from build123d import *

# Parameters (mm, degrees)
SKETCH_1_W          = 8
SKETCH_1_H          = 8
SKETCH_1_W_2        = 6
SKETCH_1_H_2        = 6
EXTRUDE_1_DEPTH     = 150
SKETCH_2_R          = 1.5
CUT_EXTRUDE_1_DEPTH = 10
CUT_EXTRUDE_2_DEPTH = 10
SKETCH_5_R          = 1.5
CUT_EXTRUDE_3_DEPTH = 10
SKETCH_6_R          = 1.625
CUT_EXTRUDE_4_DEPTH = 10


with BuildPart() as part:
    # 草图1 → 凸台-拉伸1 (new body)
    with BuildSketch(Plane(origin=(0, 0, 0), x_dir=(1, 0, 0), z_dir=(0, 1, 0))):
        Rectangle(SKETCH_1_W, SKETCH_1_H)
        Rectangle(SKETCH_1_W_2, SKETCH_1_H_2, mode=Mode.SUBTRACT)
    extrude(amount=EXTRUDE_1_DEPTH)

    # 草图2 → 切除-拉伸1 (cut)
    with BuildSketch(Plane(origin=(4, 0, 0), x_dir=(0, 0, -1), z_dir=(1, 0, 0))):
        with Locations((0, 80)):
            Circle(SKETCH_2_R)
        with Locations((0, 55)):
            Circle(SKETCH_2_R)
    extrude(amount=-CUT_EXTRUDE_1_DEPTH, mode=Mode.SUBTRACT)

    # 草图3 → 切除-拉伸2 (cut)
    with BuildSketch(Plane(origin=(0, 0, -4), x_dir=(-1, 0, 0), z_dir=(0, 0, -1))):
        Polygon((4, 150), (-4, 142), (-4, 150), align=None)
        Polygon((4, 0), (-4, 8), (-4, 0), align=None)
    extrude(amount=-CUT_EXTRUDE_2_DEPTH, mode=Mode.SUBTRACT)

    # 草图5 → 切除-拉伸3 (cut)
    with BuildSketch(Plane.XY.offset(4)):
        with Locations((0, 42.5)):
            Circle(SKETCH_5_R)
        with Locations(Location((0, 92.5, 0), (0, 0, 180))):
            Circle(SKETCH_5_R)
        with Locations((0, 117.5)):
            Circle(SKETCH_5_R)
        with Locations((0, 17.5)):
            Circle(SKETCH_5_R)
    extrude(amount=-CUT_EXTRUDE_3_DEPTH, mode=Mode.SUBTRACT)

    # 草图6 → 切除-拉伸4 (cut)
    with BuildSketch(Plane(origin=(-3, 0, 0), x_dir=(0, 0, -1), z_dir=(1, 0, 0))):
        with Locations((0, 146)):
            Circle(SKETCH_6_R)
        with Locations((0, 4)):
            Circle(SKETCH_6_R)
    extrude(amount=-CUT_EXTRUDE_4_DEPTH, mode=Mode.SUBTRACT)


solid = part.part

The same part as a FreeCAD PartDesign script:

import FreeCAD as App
import Part
import Sketcher

doc = App.newDocument("Part")
params = doc.addObject("Spreadsheet::Sheet", "Params")
for row, (alias, value) in enumerate([
    ("sketch1_width", "8 mm"),
    ("sketch1_width2", "6 mm"),
    ("pad1_length", "150 mm"),
    ("sketch2_diameter", "3 mm"),
    ("pocket1_length", "10 mm"),
    ("sketch3_width", "8 mm"),
    ("pocket2_length", "10 mm"),
    ("sketch4_diameter", "3 mm"),
    ("pocket3_length", "10 mm"),
    ("sketch5_diameter", "3.25 mm"),
    ("pocket4_length", "10 mm"),
], start=1):
    params.set(f"A{row}", alias)
    params.set(f"B{row}", "=" + value)
    params.setAlias(f"B{row}", alias)

body = doc.addObject("PartDesign::Body", "Body")

# Sketch on XZ plane
sketch1 = body.newObject("Sketcher::SketchObject", "Sketch")
sketch1.AttachmentSupport = (doc.getObject("XZ_Plane"), [""])
sketch1.MapMode = "FlatFace"
sketch1.addGeometry([
    Part.LineSegment(App.Vector(-4, -4, 0), App.Vector(-4, 4, 0)),  # 0
    Part.LineSegment(App.Vector(-4, 4, 0), App.Vector(4, 4, 0)),  # 1
    Part.LineSegment(App.Vector(4, 4, 0), App.Vector(4, -4, 0)),  # 2
    Part.LineSegment(App.Vector(4, -4, 0), App.Vector(-4, -4, 0)),  # 3
    Part.LineSegment(App.Vector(3, 3, 0), App.Vector(-3, 3, 0)),  # 4
    Part.LineSegment(App.Vector(-3, 3, 0), App.Vector(-3, -3, 0)),  # 5
    Part.LineSegment(App.Vector(-3, -3, 0), App.Vector(3, -3, 0)),  # 6
    Part.LineSegment(App.Vector(3, -3, 0), App.Vector(3, 3, 0)),  # 7
], False)
sketch1.addConstraint([
    Sketcher.Constraint("Coincident", 0, 2, 1, 1),
    Sketcher.Constraint("Coincident", 1, 2, 2, 1),
    Sketcher.Constraint("Coincident", 2, 2, 3, 1),
    Sketcher.Constraint("Coincident", 3, 2, 0, 1),
    Sketcher.Constraint("Coincident", 4, 2, 5, 1),
    Sketcher.Constraint("Coincident", 5, 2, 6, 1),
    Sketcher.Constraint("Coincident", 6, 2, 7, 1),
    Sketcher.Constraint("Coincident", 7, 2, 4, 1),
    Sketcher.Constraint("Vertical", 0),
    Sketcher.Constraint("Horizontal", 1),
    Sketcher.Constraint("Vertical", 2),
    Sketcher.Constraint("Horizontal", 3),
    Sketcher.Constraint("Horizontal", 4),
    Sketcher.Constraint("Vertical", 5),
    Sketcher.Constraint("Horizontal", 6),
    Sketcher.Constraint("Vertical", 7),
    Sketcher.Constraint("Symmetric", 0, 2, 2, 2, -1, 1),
    Sketcher.Constraint("Symmetric", 4, 2, 6, 2, -1, 1),
    Sketcher.Constraint("Equal", 3, 0),
    Sketcher.Constraint("Equal", 6, 5),
    Sketcher.Constraint("DistanceX", 1, 1, 1, 2, 8.0),
    Sketcher.Constraint("DistanceX", 4, 2, 4, 1, 6.0),
])
sketch1.setExpression("Constraints[20]", "Params.sketch1_width")
sketch1.setExpression("Constraints[21]", "Params.sketch1_width2")
pad1 = body.newObject("PartDesign::Pad", "Pad")
pad1.Profile = sketch1
pad1.setExpression("Length", "Params.pad1_length")
pad1.Reversed = True

# Sketch on YZ plane
sketch2 = body.newObject("Sketcher::SketchObject", "Sketch001")
sketch2.AttachmentSupport = (doc.getObject("YZ_Plane"), [""])
sketch2.MapMode = "FlatFace"
sketch2.AttachmentOffset = App.Placement(App.Vector(0, 0, 4), App.Rotation())
sketch2.addGeometry([
    Part.Circle(App.Vector(80, 0, 0), App.Vector(0, 0, 1), 1.5),
    Part.Circle(App.Vector(55, 0, 0), App.Vector(0, 0, 1), 1.5),
], False)
sketch2.addConstraint([
    Sketcher.Constraint("Equal", 0, 1),
    Sketcher.Constraint("PointOnObject", 0, 3, -1),
    Sketcher.Constraint("PointOnObject", 1, 3, -1),
    Sketcher.Constraint("Diameter", 0, 3.0),
    Sketcher.Constraint("DistanceX", -1, 1, 0, 3, 80.0),
    Sketcher.Constraint("DistanceX", -1, 1, 1, 3, 55.0),
])
sketch2.setExpression("Constraints[3]", "Params.sketch2_diameter")
pocket1 = body.newObject("PartDesign::Pocket", "Pocket")
pocket1.Profile = sketch2
pocket1.setExpression("Length", "Params.pocket1_length")

# Sketch on XY plane
sketch3 = body.newObject("Sketcher::SketchObject", "Sketch002")
sketch3.AttachmentSupport = (doc.getObject("XY_Plane"), [""])
sketch3.MapMode = "FlatFace"
sketch3.AttachmentOffset = App.Placement(App.Vector(0, 0, -4), App.Rotation())
sketch3.addGeometry([
    Part.LineSegment(App.Vector(4, 142, 0), App.Vector(-4, 150, 0)),  # 0
    Part.LineSegment(App.Vector(-4, 150, 0), App.Vector(4, 150, 0)),  # 1
    Part.LineSegment(App.Vector(4, 150, 0), App.Vector(4, 142, 0)),  # 2
    Part.LineSegment(App.Vector(-4, 0, 0), App.Vector(4, 8, 0)),  # 3
    Part.LineSegment(App.Vector(4, 8, 0), App.Vector(4, 0, 0)),  # 4
    Part.LineSegment(App.Vector(4, 0, 0), App.Vector(-4, 0, 0)),  # 5
], False)
sketch3.addConstraint([
    Sketcher.Constraint("Coincident", 0, 2, 1, 1),
    Sketcher.Constraint("Coincident", 1, 2, 2, 1),
    Sketcher.Constraint("Coincident", 2, 2, 0, 1),
    Sketcher.Constraint("Coincident", 3, 2, 4, 1),
    Sketcher.Constraint("Coincident", 4, 2, 5, 1),
    Sketcher.Constraint("Coincident", 5, 2, 3, 1),
    Sketcher.Constraint("Horizontal", 1),
    Sketcher.Constraint("Vertical", 2),
    Sketcher.Constraint("Vertical", 4),
    Sketcher.Constraint("Horizontal", 5),
    Sketcher.Constraint("Symmetric", 4, 2, 5, 2, -1, 1),
    Sketcher.Constraint("Perpendicular", 0, 3),
    Sketcher.Constraint("Vertical", 2, 2, 3, 2),
    Sketcher.Constraint("Vertical", 0, 2, 5, 2),
    Sketcher.Constraint("Equal", 5, 2),
    Sketcher.Constraint("DistanceX", 1, 1, 1, 2, 8.0),
    Sketcher.Constraint("DistanceY", -1, 1, 0, 2, 150.0),
])
sketch3.setExpression("Constraints[15]", "Params.sketch3_width")
pocket2 = body.newObject("PartDesign::Pocket", "Pocket001")
pocket2.Profile = sketch3
pocket2.setExpression("Length", "Params.pocket2_length")
pocket2.Reversed = True

# Sketch on XY plane
sketch4 = body.newObject("Sketcher::SketchObject", "Sketch003")
sketch4.AttachmentSupport = (doc.getObject("XY_Plane"), [""])
sketch4.MapMode = "FlatFace"
sketch4.AttachmentOffset = App.Placement(App.Vector(0, 0, 4), App.Rotation())
sketch4.addGeometry([
    Part.Circle(App.Vector(0, 42.5, 0), App.Vector(0, 0, 1), 1.5),
    Part.Circle(App.Vector(0, 92.5, 0), App.Vector(0, 0, 1), 1.5),
    Part.Circle(App.Vector(0, 117.5, 0), App.Vector(0, 0, 1), 1.5),
    Part.Circle(App.Vector(0, 17.5, 0), App.Vector(0, 0, 1), 1.5),
], False)
sketch4.addConstraint([
    Sketcher.Constraint("Equal", 0, 1),
    Sketcher.Constraint("Equal", 1, 2),
    Sketcher.Constraint("Equal", 2, 3),
    Sketcher.Constraint("PointOnObject", 0, 3, -2),
    Sketcher.Constraint("PointOnObject", 1, 3, -2),
    Sketcher.Constraint("PointOnObject", 2, 3, -2),
    Sketcher.Constraint("PointOnObject", 3, 3, -2),
    Sketcher.Constraint("Diameter", 0, 3.0),
    Sketcher.Constraint("DistanceY", 0, 3, 1, 3, 50.0),
    Sketcher.Constraint("DistanceY", 1, 3, 2, 3, 25.0),
    Sketcher.Constraint("DistanceY", 3, 3, 0, 3, 25.0),
    Sketcher.Constraint("DistanceY", -1, 1, 0, 3, 42.5),
])
sketch4.setExpression("Constraints[7]", "Params.sketch4_diameter")
pocket3 = body.newObject("PartDesign::Pocket", "Pocket002")
pocket3.Profile = sketch4
pocket3.setExpression("Length", "Params.pocket3_length")

# Sketch on YZ plane
sketch5 = body.newObject("Sketcher::SketchObject", "Sketch004")
sketch5.AttachmentSupport = (doc.getObject("YZ_Plane"), [""])
sketch5.MapMode = "FlatFace"
sketch5.AttachmentOffset = App.Placement(App.Vector(0, 0, -3), App.Rotation())
sketch5.addGeometry([
    Part.Circle(App.Vector(146, 0, 0), App.Vector(0, 0, 1), 1.6),
    Part.Circle(App.Vector(4, 0, 0), App.Vector(0, 0, 1), 1.6),
], False)
sketch5.addConstraint([
    Sketcher.Constraint("Equal", 0, 1),
    Sketcher.Constraint("PointOnObject", 0, 3, -1),
    Sketcher.Constraint("PointOnObject", 1, 3, -1),
    Sketcher.Constraint("Diameter", 0, 3.25),
    Sketcher.Constraint("DistanceX", -1, 1, 0, 3, 146.0),
    Sketcher.Constraint("DistanceX", -1, 1, 1, 3, 4.0),
])
sketch5.setExpression("Constraints[3]", "Params.sketch5_diameter")
pocket4 = body.newObject("PartDesign::Pocket", "Pocket003")
pocket4.Profile = sketch5
pocket4.setExpression("Length", "Params.pocket4_length")

doc.recompute()
